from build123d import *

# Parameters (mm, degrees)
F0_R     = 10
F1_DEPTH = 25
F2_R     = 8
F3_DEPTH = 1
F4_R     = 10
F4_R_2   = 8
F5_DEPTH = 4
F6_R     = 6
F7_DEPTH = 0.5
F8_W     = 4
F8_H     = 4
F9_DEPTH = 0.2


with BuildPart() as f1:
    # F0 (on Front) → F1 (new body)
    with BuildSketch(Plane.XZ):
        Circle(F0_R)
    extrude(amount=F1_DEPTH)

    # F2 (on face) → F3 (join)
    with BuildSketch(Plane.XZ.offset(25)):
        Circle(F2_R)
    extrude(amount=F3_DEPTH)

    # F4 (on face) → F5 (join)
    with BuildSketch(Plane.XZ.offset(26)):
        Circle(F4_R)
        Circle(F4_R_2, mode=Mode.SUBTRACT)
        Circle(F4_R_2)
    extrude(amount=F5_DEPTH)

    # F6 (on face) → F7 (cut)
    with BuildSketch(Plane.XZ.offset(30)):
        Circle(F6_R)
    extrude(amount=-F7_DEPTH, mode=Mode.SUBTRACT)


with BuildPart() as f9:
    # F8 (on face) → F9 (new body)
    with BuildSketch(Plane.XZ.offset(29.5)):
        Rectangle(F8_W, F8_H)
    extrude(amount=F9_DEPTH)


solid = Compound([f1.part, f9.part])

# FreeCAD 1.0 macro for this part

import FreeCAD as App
import Part
import Sketcher

doc = App.newDocument("Part")
body = doc.addObject("PartDesign::Body", "Body")

sketch1 = doc.addObject("Sketcher::SketchObject", "Sketch")
body.addObject(sketch1)
sketch1.AttachmentSupport = (doc.XZ_Plane, [""])
sketch1.MapMode = "FlatFace"
sketch1.addGeometry(Part.Circle(App.Vector(0, 0, 0), App.Vector(0, 0, 1), 10), False)
sketch1.addConstraint([
    Sketcher.Constraint("Coincident", 0, 3, -1, 1),
    Sketcher.Constraint("Diameter", 0, 20.0),
])
pad1 = doc.addObject("PartDesign::Pad", "Pad")
body.addObject(pad1)
pad1.Profile = sketch1
pad1.Length = 25

sketch2 = doc.addObject("Sketcher::SketchObject", "Sketch001")
body.addObject(sketch2)
sketch2.AttachmentSupport = (doc.XZ_Plane, [""])
sketch2.MapMode = "FlatFace"
sketch2.AttachmentOffset = App.Placement(App.Vector(0, 0, 25), App.Rotation())
sketch2.addGeometry(Part.Circle(App.Vector(0, 0, 0), App.Vector(0, 0, 1), 8), False)
sketch2.addConstraint([
    Sketcher.Constraint("Coincident", 0, 3, -1, 1),
    Sketcher.Constraint("Diameter", 0, 16.0),
])
pad2 = doc.addObject("PartDesign::Pad", "Pad001")
body.addObject(pad2)
pad2.Profile = sketch2
pad2.Length = 1

sketch3 = doc.addObject("Sketcher::SketchObject", "Sketch002")
body.addObject(sketch3)
sketch3.AttachmentSupport = (doc.XZ_Plane, [""])
sketch3.MapMode = "FlatFace"
sketch3.AttachmentOffset = App.Placement(App.Vector(0, 0, 26), App.Rotation())
sketch3.addGeometry(Part.Circle(App.Vector(0, 0, 0), App.Vector(0, 0, 1), 10), False)
sketch3.addConstraint([
    Sketcher.Constraint("Coincident", 0, 3, -1, 1),
    Sketcher.Constraint("Diameter", 0, 20.0),
])
pad3 = doc.addObject("PartDesign::Pad", "Pad002")
body.addObject(pad3)
pad3.Profile = sketch3
pad3.Length = 4

sketch4 = doc.addObject("Sketcher::SketchObject", "Sketch003")
body.addObject(sketch4)
sketch4.AttachmentSupport = (doc.XZ_Plane, [""])
sketch4.MapMode = "FlatFace"
sketch4.AttachmentOffset = App.Placement(App.Vector(0, 0, 30), App.Rotation())
sketch4.addGeometry(Part.Circle(App.Vector(0, 0, 0), App.Vector(0, 0, 1), 6), False)
sketch4.addConstraint([
    Sketcher.Constraint("Coincident", 0, 3, -1, 1),
    Sketcher.Constraint("Diameter", 0, 12.0),
])
pocket1 = doc.addObject("PartDesign::Pocket", "Pocket")
body.addObject(pocket1)
pocket1.Profile = sketch4
pocket1.Length = 0.5
body2 = doc.addObject("PartDesign::Body", "Body001")

sketch5 = doc.addObject("Sketcher::SketchObject", "Sketch004")
body2.addObject(sketch5)
sketch5.AttachmentSupport = (doc.getObject("XZ_Plane001"), [""])
sketch5.MapMode = "FlatFace"
sketch5.AttachmentOffset = App.Placement(App.Vector(0, 0, 29.5), App.Rotation())
sketch5.addGeometry([
    Part.LineSegment(App.Vector(-2, 2, 0), App.Vector(-2, -2, 0)),
    Part.LineSegment(App.Vector(-2, -2, 0), App.Vector(2, -2, 0)),
    Part.LineSegment(App.Vector(2, -2, 0), App.Vector(2, 2, 0)),
    Part.LineSegment(App.Vector(2, 2, 0), App.Vector(-2, 2, 0)),
], False)
sketch5.addConstraint([
    Sketcher.Constraint("Coincident", 0, 2, 1, 1),
    Sketcher.Constraint("Coincident", 1, 2, 2, 1),
    Sketcher.Constraint("Coincident", 2, 2, 3, 1),
    Sketcher.Constraint("Coincident", 3, 2, 0, 1),
    Sketcher.Constraint("Vertical", 0),
    Sketcher.Constraint("Horizontal", 1),
    Sketcher.Constraint("Vertical", 2),
    Sketcher.Constraint("Horizontal", 3),
    Sketcher.Constraint("Symmetric", 0, 2, 2, 2, -1, 1),
    Sketcher.Constraint("Equal", 3, 0),
    Sketcher.Constraint("DistanceX", 1, 1, 1, 2, 4.0),
])
pad4 = doc.addObject("PartDesign::Pad", "Pad003")
body2.addObject(pad4)
pad4.Profile = sketch5
pad4.Length = 0.2

doc.recompute()
